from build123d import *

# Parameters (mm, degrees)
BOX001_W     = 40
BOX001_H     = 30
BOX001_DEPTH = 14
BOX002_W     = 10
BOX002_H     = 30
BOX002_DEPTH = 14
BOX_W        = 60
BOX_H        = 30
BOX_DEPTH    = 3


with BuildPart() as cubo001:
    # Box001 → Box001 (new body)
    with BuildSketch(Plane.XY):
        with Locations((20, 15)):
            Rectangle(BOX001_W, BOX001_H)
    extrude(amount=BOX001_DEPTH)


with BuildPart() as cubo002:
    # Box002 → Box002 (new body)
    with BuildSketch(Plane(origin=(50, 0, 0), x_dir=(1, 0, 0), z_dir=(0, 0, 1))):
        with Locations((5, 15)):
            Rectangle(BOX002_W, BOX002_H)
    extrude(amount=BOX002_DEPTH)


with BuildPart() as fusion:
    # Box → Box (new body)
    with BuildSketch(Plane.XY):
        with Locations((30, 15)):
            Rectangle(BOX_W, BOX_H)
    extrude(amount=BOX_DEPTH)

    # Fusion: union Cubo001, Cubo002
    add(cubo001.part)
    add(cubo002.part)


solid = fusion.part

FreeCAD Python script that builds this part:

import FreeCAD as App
import Part
import Sketcher
from FreeCAD import Vector

doc = App.newDocument("Part")
params = doc.addObject("Spreadsheet::Sheet", "Params")
for row, (alias, value) in enumerate([
    ("sketch1_width", "40 mm"),
    ("sketch1_height", "30 mm"),
    ("pad1_length", "14 mm"),
    ("sketch2_width", "10 mm"),
    ("sketch2_height", "30 mm"),
    ("pad2_length", "14 mm"),
    ("sketch3_width", "60 mm"),
    ("sketch3_height", "30 mm"),
    ("pad3_length", "3 mm"),
], start=1):
    params.set(f"A{row}", alias)
    params.set(f"B{row}", "=" + value)
    params.setAlias(f"B{row}", alias)

body = doc.addObject("PartDesign::Body", "Body")

# Sketch on XY plane
sketch1 = body.newObject("Sketcher::SketchObject", "Sketch")
sketch1.AttachmentSupport = (doc.getObject("XY_Plane"), [""])
sketch1.MapMode = "FlatFace"
sketch1.addGeometry(Part.LineSegment(Vector(0, 30, 0), Vector(0, 0, 0)), False)
sketch1.addGeometry(Part.LineSegment(Vector(0, 0, 0), Vector(40, 0, 0)), False)
sketch1.addGeometry(Part.LineSegment(Vector(40, 0, 0), Vector(40, 30, 0)), False)
sketch1.addGeometry(Part.LineSegment(Vector(40, 30, 0), Vector(0, 30, 0)), False)
sketch1.addConstraint(Sketcher.Constraint("Coincident", 0, 2, 1, 1))
sketch1.addConstraint(Sketcher.Constraint("Coincident", 1, 2, 2, 1))
sketch1.addConstraint(Sketcher.Constraint("Coincident", 2, 2, 3, 1))
sketch1.addConstraint(Sketcher.Constraint("Coincident", 3, 2, 0, 1))
sketch1.addConstraint(Sketcher.Constraint("Vertical", 0))
sketch1.addConstraint(Sketcher.Constraint("Horizontal", 1))
sketch1.addConstraint(Sketcher.Constraint("Vertical", 2))
sketch1.addConstraint(Sketcher.Constraint("Horizontal", 3))
sketch1.addConstraint(Sketcher.Constraint("Coincident", 0, 2, -1, 1))
sketch1.addConstraint(Sketcher.Constraint("DistanceX", 1, 1, 1, 2, 40.0))
sketch1.addConstraint(Sketcher.Constraint("DistanceY", 0, 2, 0, 1, 30.0))
sketch1.setExpression("Constraints[9]", "Params.sketch1_width")
sketch1.setExpression("Constraints[10]", "Params.sketch1_height")
pad1 = body.newObject("PartDesign::Pad", "Pad")
pad1.Profile = sketch1
pad1.setExpression("Length", "Params.pad1_length")
body2 = doc.addObject("PartDesign::Body", "Body001")

# Sketch on XY plane
sketch2 = body2.newObject("Sketcher::SketchObject", "Sketch001")
sketch2.AttachmentSupport = (doc.getObject("XY_Plane001"), [""])
sketch2.MapMode = "FlatFace"
sketch2.addGeometry(Part.LineSegment(Vector(50, 30, 0), Vector(50, 0, 0)), False)
sketch2.addGeometry(Part.LineSegment(Vector(50, 0, 0), Vector(60, 0, 0)), False)
sketch2.addGeometry(Part.LineSegment(Vector(60, 0, 0), Vector(60, 30, 0)), False)
sketch2.addGeometry(Part.LineSegment(Vector(60, 30, 0), Vector(50, 30, 0)), False)
sketch2.addConstraint(Sketcher.Constraint("Coincident", 0, 2, 1, 1))
sketch2.addConstraint(Sketcher.Constraint("Coincident", 1, 2, 2, 1))
sketch2.addConstraint(Sketcher.Constraint("Coincident", 2, 2, 3, 1))
sketch2.addConstraint(Sketcher.Constraint("Coincident", 3, 2, 0, 1))
sketch2.addConstraint(Sketcher.Constraint("Vertical", 0))
sketch2.addConstraint(Sketcher.Constraint("Horizontal", 1))
sketch2.addConstraint(Sketcher.Constraint("Vertical", 2))
sketch2.addConstraint(Sketcher.Constraint("Horizontal", 3))
sketch2.addConstraint(Sketcher.Constraint("PointOnObject", 0, 2, -1))
sketch2.addConstraint(Sketcher.Constraint("DistanceX", 1, 1, 1, 2, 10.0))
sketch2.addConstraint(Sketcher.Constraint("DistanceY", 0, 2, 0, 1, 30.0))
sketch2.addConstraint(Sketcher.Constraint("DistanceX", -1, 1, 0, 2, 50.0))
sketch2.setExpression("Constraints[9]", "Params.sketch2_width")
sketch2.setExpression("Constraints[10]", "Params.sketch2_height")
pad2 = body2.newObject("PartDesign::Pad", "Pad001")
pad2.Profile = sketch2
pad2.setExpression("Length", "Params.pad2_length")
body3 = doc.addObject("PartDesign::Body", "Body002")

# Sketch on XY plane
sketch3 = body3.newObject("Sketcher::SketchObject", "Sketch002")
sketch3.AttachmentSupport = (doc.getObject("XY_Plane002"), [""])
sketch3.MapMode = "FlatFace"
sketch3.addGeometry(Part.LineSegment(Vector(0, 30, 0), Vector(0, 0, 0)), False)
sketch3.addGeometry(Part.LineSegment(Vector(0, 0, 0), Vector(60, 0, 0)), False)
sketch3.addGeometry(Part.LineSegment(Vector(60, 0, 0), Vector(60, 30, 0)), False)
sketch3.addGeometry(Part.LineSegment(Vector(60, 30, 0), Vector(0, 30, 0)), False)
sketch3.addConstraint(Sketcher.Constraint("Coincident", 0, 2, 1, 1))
sketch3.addConstraint(Sketcher.Constraint("Coincident", 1, 2, 2, 1))
sketch3.addConstraint(Sketcher.Constraint("Coincident", 2, 2, 3, 1))
sketch3.addConstraint(Sketcher.Constraint("Coincident", 3, 2, 0, 1))
sketch3.addConstraint(Sketcher.Constraint("Vertical", 0))
sketch3.addConstraint(Sketcher.Constraint("Horizontal", 1))
sketch3.addConstraint(Sketcher.Constraint("Vertical", 2))
sketch3.addConstraint(Sketcher.Constraint("Horizontal", 3))
sketch3.addConstraint(Sketcher.Constraint("Coincident", 0, 2, -1, 1))
sketch3.addConstraint(Sketcher.Constraint("DistanceX", 1, 1, 1, 2, 60.0))
sketch3.addConstraint(Sketcher.Constraint("DistanceY", 0, 2, 0, 1, 30.0))
sketch3.setExpression("Constraints[9]", "Params.sketch3_width")
sketch3.setExpression("Constraints[10]", "Params.sketch3_height")
pad3 = body3.newObject("PartDesign::Pad", "Pad002")
pad3.Profile = sketch3
pad3.setExpression("Length", "Params.pad3_length")
doc.recompute()

boolean = body3.newObject("PartDesign::Boolean", "Boolean")
boolean.Type = "Fuse"
boolean.addObjects([body])
doc.recompute()

boolean2 = body3.newObject("PartDesign::Boolean", "Boolean001")
boolean2.Type = "Fuse"
boolean2.addObjects([body2])

doc.recompute()
